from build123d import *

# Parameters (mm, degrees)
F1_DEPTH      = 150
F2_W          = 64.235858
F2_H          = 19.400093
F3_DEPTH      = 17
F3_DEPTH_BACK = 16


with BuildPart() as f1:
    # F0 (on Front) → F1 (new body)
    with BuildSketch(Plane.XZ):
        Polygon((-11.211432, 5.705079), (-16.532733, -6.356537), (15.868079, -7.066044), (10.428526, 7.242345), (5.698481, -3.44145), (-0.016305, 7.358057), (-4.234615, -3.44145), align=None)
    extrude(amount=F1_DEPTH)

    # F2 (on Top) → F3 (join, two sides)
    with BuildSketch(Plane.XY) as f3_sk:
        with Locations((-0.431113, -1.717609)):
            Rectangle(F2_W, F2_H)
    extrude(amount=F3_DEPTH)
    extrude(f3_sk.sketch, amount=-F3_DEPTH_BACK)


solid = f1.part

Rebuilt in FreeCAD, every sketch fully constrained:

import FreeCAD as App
import Part
import Sketcher
from FreeCAD import Vector


def add_polygon(sketch, points):
    """Adds a closed chain of lines whose ends are joined by coincident constraints."""
    first, n = sketch.GeometryCount, len(points)
    for a, b in zip(points, points[1:] + points[:1]):
        sketch.addGeometry(Part.LineSegment(App.Vector(*a, 0), App.Vector(*b, 0)), False)
    for i in range(n):
        sketch.addConstraint(Sketcher.Constraint("Coincident", first + i, 2, first + (i + 1) % n, 1))

doc = App.newDocument("Part")
body = doc.addObject("PartDesign::Body", "Body")

# Sketch on XZ plane
sketch1 = body.newObject("Sketcher::SketchObject", "Sketch")
sketch1.AttachmentSupport = (doc.getObject("XZ_Plane"), [""])
sketch1.MapMode = "FlatFace"
add_polygon(sketch1, [(-11, 6), (-17, -6), (16, -7), (10, 7), (6, -3), (0, 7), (-4, -3)])  # lines 0-6
sketch1.addConstraint(Sketcher.Constraint("Horizontal", 3, 2, 5, 2))
sketch1.addConstraint(Sketcher.Constraint("DistanceY", 1, 2, 4, 2, 14.424101))
sketch1.addConstraint(Sketcher.Constraint("DistanceX", 0, 2, 6, 2, 5.321301))
sketch1.addConstraint(Sketcher.Constraint("Distance", 0, 13.183278))
sketch1.addConstraint(Sketcher.Constraint("Distance", 1, 32.408579))
sketch1.addConstraint(Sketcher.Constraint("Distance", 3, 11.68404))
sketch1.addConstraint(Sketcher.Constraint("DistanceX", -1, 1, 1, 2, 15.868079))
sketch1.addConstraint(Sketcher.Constraint("DistanceX", -1, 1, 3, 2, 5.698481))
sketch1.addConstraint(Sketcher.Constraint("DistanceY", 3, 2, -1, 1, 3.44145))
sketch1.addConstraint(Sketcher.Constraint("DistanceY", -1, 1, 6, 2, 5.705079))
sketch1.addConstraint(Sketcher.Constraint("DistanceY", 1, 2, 2, 2, 14.308389))
sketch1.addConstraint(Sketcher.Constraint("DistanceX", 0, 2, 2, 2, 26.961259))
sketch1.addConstraint(Sketcher.Constraint("DistanceX", 4, 2, 2, 2, 10.444831))
sketch1.addConstraint(Sketcher.Constraint("DistanceX", 5, 2, 4, 2, 4.21831))
pad1 = body.newObject("PartDesign::Pad", "Pad")
pad1.Profile = sketch1
pad1.Length = 150

# Sketch on XY plane
sketch2 = body.newObject("Sketcher::SketchObject", "Sketch001")
sketch2.AttachmentSupport = (doc.getObject("XY_Plane"), [""])
sketch2.MapMode = "FlatFace"
add_polygon(sketch2, [(-33, 8), (-33, -11), (32, -11), (32, 8)])  # lines 0-3
sketch2.addConstraint(Sketcher.Constraint("Vertical", 0))
sketch2.addConstraint(Sketcher.Constraint("Horizontal", 1))
sketch2.addConstraint(Sketcher.Constraint("Vertical", 2))
sketch2.addConstraint(Sketcher.Constraint("Horizontal", 3))
sketch2.addConstraint(Sketcher.Constraint("DistanceX", 1, 1, 1, 2, 64.235858))
sketch2.addConstraint(Sketcher.Constraint("DistanceY", 0, 2, 0, 1, 19.400093))
sketch2.addConstraint(Sketcher.Constraint("DistanceX", 0, 2, -1, 1, 32.549042))
sketch2.addConstraint(Sketcher.Constraint("DistanceY", 0, 2, -1, 1, 11.417656))
pad2 = body.newObject("PartDesign::Pad", "Pad001")
pad2.Profile = sketch2
pad2.Type = "TwoLengths"
pad2.Length = 17
pad2.Length2 = 16

doc.recompute()
